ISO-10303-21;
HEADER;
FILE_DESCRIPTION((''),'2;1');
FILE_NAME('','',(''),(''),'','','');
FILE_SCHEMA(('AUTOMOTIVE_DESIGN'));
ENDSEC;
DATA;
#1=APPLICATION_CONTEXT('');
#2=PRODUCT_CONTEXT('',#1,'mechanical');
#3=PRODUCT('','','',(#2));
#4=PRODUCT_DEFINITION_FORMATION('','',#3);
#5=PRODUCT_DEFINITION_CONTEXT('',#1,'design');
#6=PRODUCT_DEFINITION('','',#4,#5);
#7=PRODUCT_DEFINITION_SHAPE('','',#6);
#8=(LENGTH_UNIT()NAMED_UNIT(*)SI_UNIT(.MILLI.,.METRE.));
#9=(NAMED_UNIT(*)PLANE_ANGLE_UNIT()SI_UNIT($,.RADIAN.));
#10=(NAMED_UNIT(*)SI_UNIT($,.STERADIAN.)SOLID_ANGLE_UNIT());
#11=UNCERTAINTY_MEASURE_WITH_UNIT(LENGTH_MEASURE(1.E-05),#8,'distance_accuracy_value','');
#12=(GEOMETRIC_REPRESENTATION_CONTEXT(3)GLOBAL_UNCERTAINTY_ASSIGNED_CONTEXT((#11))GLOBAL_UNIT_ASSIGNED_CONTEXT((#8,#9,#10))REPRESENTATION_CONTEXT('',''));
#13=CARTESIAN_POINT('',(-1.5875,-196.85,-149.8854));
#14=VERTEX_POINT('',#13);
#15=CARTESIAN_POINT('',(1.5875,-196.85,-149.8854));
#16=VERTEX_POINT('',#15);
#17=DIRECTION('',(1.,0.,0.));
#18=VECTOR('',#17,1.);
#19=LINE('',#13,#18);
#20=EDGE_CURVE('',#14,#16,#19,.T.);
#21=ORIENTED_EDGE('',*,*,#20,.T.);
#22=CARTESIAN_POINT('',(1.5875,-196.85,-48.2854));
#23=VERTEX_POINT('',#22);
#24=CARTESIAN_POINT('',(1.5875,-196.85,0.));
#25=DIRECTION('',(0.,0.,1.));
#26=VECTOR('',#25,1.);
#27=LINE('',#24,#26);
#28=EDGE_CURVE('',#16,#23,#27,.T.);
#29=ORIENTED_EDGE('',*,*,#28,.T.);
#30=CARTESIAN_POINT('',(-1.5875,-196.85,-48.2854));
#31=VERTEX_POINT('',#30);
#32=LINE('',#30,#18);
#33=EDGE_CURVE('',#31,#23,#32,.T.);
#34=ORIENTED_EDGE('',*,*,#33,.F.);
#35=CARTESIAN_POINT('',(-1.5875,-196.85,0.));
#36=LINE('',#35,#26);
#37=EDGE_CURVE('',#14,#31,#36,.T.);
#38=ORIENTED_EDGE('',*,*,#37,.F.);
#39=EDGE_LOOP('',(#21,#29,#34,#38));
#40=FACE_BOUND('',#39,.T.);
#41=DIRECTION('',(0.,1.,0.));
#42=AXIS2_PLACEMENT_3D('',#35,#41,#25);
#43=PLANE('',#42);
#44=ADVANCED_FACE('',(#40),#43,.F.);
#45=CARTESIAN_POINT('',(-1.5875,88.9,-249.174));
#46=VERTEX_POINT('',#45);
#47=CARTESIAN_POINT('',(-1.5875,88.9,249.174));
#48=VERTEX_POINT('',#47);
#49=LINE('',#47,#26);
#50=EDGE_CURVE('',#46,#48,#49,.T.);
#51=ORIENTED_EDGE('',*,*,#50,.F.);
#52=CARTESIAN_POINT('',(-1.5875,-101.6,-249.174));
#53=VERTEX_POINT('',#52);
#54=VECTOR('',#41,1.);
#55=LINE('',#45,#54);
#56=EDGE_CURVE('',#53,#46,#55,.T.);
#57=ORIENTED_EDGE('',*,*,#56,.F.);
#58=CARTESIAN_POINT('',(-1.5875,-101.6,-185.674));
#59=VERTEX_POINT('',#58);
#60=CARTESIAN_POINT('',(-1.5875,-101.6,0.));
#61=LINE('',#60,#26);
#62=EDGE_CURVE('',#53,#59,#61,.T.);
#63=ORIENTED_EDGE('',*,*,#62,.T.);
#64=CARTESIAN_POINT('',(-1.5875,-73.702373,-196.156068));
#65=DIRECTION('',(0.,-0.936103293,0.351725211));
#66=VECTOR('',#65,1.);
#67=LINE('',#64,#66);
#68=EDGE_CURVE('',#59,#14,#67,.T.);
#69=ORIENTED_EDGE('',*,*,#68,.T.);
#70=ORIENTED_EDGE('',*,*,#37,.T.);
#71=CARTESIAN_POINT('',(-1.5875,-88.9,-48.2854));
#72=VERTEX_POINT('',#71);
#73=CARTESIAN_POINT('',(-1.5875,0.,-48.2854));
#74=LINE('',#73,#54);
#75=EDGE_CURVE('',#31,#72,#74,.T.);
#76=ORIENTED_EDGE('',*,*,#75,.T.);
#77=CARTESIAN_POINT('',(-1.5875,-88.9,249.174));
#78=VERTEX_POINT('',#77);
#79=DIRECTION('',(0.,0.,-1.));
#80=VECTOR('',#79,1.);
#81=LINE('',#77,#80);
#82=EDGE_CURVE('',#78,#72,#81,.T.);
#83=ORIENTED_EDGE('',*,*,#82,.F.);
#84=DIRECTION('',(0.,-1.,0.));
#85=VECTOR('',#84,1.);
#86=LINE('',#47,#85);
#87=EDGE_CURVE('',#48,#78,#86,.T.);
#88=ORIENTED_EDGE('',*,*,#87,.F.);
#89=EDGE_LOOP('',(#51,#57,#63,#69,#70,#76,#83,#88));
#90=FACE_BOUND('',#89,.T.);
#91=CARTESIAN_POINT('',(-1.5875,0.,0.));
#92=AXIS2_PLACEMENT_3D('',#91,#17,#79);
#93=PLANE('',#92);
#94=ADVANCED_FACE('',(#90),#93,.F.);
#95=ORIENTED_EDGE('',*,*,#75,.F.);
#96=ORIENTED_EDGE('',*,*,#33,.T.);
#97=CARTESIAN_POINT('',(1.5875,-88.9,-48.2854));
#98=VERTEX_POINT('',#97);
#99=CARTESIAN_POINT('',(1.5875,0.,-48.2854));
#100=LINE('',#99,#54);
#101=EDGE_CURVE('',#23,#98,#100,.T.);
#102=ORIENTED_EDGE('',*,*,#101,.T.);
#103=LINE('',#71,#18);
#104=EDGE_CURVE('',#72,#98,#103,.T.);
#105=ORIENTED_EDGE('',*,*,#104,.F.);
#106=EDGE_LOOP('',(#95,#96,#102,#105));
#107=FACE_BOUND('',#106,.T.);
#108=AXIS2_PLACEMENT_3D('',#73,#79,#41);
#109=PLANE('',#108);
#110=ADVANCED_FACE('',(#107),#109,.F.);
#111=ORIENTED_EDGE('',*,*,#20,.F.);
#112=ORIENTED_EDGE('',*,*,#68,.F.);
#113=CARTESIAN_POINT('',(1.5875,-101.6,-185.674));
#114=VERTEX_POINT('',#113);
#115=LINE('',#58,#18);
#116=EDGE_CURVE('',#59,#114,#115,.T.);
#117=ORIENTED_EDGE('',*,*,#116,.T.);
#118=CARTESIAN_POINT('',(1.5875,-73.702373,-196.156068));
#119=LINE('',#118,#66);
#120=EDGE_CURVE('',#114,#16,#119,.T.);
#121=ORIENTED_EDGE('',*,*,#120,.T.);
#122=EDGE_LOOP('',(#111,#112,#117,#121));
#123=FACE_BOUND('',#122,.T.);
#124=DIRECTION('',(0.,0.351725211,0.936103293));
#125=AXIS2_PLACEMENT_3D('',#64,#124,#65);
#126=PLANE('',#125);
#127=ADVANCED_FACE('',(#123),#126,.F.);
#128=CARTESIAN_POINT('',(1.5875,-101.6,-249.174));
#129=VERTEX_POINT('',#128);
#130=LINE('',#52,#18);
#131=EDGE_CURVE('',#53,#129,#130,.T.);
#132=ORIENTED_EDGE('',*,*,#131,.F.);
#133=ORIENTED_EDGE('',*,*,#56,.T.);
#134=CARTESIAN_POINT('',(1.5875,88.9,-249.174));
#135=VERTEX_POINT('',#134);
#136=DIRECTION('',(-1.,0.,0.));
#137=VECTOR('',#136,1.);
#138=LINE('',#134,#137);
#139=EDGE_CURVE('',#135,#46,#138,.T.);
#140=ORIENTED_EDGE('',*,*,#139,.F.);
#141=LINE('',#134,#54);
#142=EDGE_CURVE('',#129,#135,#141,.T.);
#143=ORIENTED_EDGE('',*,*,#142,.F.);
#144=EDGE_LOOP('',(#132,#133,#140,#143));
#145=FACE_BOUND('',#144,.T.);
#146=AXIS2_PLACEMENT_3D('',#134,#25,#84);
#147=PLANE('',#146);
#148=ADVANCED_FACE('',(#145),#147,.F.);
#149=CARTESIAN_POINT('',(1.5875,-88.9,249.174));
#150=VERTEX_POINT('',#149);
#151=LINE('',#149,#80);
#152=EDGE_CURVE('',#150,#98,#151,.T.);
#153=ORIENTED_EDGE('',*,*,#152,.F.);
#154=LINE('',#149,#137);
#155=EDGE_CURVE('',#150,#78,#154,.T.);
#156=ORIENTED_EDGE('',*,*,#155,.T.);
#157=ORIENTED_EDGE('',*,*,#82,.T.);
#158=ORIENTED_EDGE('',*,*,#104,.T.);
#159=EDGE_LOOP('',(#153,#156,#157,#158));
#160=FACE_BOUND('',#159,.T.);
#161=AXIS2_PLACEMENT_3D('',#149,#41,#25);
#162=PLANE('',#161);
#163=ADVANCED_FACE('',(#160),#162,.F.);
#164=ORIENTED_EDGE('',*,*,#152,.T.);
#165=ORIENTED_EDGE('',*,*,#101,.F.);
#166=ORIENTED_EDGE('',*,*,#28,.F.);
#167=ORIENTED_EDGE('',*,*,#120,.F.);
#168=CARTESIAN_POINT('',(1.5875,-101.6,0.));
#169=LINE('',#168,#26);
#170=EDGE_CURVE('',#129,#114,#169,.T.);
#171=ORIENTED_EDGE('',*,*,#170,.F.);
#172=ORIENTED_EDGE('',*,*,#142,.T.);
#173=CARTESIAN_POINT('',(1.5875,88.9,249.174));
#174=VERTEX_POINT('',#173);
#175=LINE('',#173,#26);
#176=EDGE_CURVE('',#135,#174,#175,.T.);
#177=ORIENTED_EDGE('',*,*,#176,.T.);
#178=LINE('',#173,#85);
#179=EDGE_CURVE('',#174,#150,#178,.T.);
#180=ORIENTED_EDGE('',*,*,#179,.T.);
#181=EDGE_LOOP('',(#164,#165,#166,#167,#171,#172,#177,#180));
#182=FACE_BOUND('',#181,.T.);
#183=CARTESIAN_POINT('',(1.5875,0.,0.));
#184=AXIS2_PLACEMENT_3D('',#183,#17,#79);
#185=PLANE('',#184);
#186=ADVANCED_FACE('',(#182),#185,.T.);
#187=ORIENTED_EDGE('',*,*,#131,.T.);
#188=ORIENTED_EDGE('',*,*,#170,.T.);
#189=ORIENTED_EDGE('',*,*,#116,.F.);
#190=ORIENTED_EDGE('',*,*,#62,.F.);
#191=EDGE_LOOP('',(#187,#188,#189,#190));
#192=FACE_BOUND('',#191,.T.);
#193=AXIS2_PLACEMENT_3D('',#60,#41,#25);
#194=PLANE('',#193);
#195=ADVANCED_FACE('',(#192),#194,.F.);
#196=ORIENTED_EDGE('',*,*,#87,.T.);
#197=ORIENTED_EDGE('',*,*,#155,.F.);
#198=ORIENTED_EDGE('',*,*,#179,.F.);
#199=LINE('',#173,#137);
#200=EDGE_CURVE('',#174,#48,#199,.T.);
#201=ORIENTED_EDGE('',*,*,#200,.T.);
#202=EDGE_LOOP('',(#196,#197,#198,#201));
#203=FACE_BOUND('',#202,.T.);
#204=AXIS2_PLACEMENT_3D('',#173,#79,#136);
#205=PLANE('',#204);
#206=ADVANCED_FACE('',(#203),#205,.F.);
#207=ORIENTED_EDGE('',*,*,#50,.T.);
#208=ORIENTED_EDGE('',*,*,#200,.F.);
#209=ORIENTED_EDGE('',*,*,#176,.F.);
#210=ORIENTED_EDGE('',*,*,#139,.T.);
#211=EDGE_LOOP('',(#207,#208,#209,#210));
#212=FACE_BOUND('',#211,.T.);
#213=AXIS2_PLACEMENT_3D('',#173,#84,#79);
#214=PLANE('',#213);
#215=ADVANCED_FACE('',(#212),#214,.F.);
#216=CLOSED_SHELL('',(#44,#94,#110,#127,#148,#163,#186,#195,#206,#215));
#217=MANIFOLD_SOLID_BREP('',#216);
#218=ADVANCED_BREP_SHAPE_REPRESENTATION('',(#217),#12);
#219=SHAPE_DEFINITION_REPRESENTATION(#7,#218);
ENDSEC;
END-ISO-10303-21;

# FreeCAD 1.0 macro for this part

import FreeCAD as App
import Part
import Sketcher

V = App.Vector
Q = App.Units.Quantity

doc = App.newDocument("Part")
params = doc.addObject("Spreadsheet::Sheet", "Params")
for row, (alias, value) in enumerate([
    ("sketch1_width", "7 in"),
    ("sketch1_height", "19.62 in"),
    ("pad1_length", "0.125 in"),
    ("sketch2_height", "4 in"),
    ("sketch2_width", "0.5 in"),
    ("sketch2_height2", "2.5 in"),
    ("sketch2_width2", "4.25 in"),
    ("sketch2_height3", "7.909 in"),
    ("pad2_length", "0.125 in"),
], start=1):
    params.set(f"A{row}", alias)
    params.set(f"B{row}", "=" + value)
    params.setAlias(f"B{row}", alias)

body = doc.addObject("PartDesign::Body", "Body")

sketch1 = body.newObject("Sketcher::SketchObject", "Sketch")
sketch1.AttachmentSupport = (doc.getObject("YZ_Plane"), [""])
sketch1.MapMode = "FlatFace"
sketch1.addGeometry([
    Part.LineSegment(V(89, 249, 0), V(-89, 249, 0)),
    Part.LineSegment(V(-89, 249, 0), V(-89, -249, 0)),
    Part.LineSegment(V(-89, -249, 0), V(89, -249, 0)),
    Part.LineSegment(V(89, -249, 0), V(89, 249, 0)),
], False)
sketch1.addConstraint([
    Sketcher.Constraint("Coincident", 0, 2, 1, 1),
    Sketcher.Constraint("Coincident", 1, 2, 2, 1),
    Sketcher.Constraint("Coincident", 2, 2, 3, 1),
    Sketcher.Constraint("Coincident", 3, 2, 0, 1),
    Sketcher.Constraint("Horizontal", 0),
    Sketcher.Constraint("Vertical", 1),
    Sketcher.Constraint("Horizontal", 2),
    Sketcher.Constraint("Vertical", 3),
    Sketcher.Constraint("Symmetric", 0, 2, 2, 2, -1, 1),
    Sketcher.Constraint("DistanceX", 0, 2, 0, 1, Q("7 in")),
    Sketcher.Constraint("DistanceY", 1, 2, 1, 1, Q("19.62 in")),
])
sketch1.setExpression("Constraints[9]", "Params.sketch1_width")
sketch1.setExpression("Constraints[10]", "Params.sketch1_height")
pad1 = body.newObject("PartDesign::Pad", "Pad")
pad1.Profile = sketch1
pad1.setExpression("Length", "Params.pad1_length")
pad1.Midplane = True

sketch2 = body.newObject("Sketcher::SketchObject", "Sketch001")
sketch2.AttachmentSupport = (doc.getObject("YZ_Plane"), [""])
sketch2.MapMode = "FlatFace"
sketch2.AttachmentOffset = App.Placement(V(0, 0, 0.0625 * 25.4), App.Rotation())
sketch2.addGeometry([
    Part.LineSegment(V(-102, -249, 0), V(-89, -249, 0)),
    Part.LineSegment(V(-89, -249, 0), V(-89, -48, 0)),
    Part.LineSegment(V(-89, -48, 0), V(-197, -48, 0)),
    Part.LineSegment(V(-197, -48, 0), V(-197, -150, 0)),
    Part.LineSegment(V(-197, -150, 0), V(-102, -186, 0)),
    Part.LineSegment(V(-102, -186, 0), V(-102, -249, 0)),
], False)
sketch2.addConstraint([
    Sketcher.Constraint("Coincident", 0, 2, 1, 1),
    Sketcher.Constraint("Coincident", 1, 2, 2, 1),
    Sketcher.Constraint("Coincident", 2, 2, 3, 1),
    Sketcher.Constraint("Coincident", 3, 2, 4, 1),
    Sketcher.Constraint("Coincident", 4, 2, 5, 1),
    Sketcher.Constraint("Coincident", 5, 2, 0, 1),
    Sketcher.Constraint("Horizontal", 0),
    Sketcher.Constraint("Vertical", 1),
    Sketcher.Constraint("Horizontal", 2),
    Sketcher.Constraint("Vertical", 3),
    Sketcher.Constraint("Vertical", 5),
    Sketcher.Constraint("DistanceY", 3, 2, 3, 1, Q("4 in")),
    Sketcher.Constraint("DistanceX", 0, 1, 0, 2, Q("0.5 in")),
    Sketcher.Constraint("DistanceY", 5, 2, 5, 1, Q("2.5 in")),
    Sketcher.Constraint("DistanceX", 4, 2, -1, 1, Q("4 in")),
    Sketcher.Constraint("DistanceX", 2, 2, 2, 1, Q("4.25 in")),
    Sketcher.Constraint("DistanceY", 1, 1, 1, 2, Q("7.909 in")),
    Sketcher.Constraint("DistanceY", 0, 2, -1, 1, Q("9.81 in")),
])
sketch2.setExpression("Constraints[11]", "Params.sketch2_height")
sketch2.setExpression("Constraints[12]", "Params.sketch2_width")
sketch2.setExpression("Constraints[13]", "Params.sketch2_height2")
sketch2.setExpression("Constraints[15]", "Params.sketch2_width2")
sketch2.setExpression("Constraints[16]", "Params.sketch2_height3")
pad2 = body.newObject("PartDesign::Pad", "Pad001")
pad2.Profile = sketch2
pad2.setExpression("Length", "Params.pad2_length")
pad2.Reversed = True

doc.recompute()
